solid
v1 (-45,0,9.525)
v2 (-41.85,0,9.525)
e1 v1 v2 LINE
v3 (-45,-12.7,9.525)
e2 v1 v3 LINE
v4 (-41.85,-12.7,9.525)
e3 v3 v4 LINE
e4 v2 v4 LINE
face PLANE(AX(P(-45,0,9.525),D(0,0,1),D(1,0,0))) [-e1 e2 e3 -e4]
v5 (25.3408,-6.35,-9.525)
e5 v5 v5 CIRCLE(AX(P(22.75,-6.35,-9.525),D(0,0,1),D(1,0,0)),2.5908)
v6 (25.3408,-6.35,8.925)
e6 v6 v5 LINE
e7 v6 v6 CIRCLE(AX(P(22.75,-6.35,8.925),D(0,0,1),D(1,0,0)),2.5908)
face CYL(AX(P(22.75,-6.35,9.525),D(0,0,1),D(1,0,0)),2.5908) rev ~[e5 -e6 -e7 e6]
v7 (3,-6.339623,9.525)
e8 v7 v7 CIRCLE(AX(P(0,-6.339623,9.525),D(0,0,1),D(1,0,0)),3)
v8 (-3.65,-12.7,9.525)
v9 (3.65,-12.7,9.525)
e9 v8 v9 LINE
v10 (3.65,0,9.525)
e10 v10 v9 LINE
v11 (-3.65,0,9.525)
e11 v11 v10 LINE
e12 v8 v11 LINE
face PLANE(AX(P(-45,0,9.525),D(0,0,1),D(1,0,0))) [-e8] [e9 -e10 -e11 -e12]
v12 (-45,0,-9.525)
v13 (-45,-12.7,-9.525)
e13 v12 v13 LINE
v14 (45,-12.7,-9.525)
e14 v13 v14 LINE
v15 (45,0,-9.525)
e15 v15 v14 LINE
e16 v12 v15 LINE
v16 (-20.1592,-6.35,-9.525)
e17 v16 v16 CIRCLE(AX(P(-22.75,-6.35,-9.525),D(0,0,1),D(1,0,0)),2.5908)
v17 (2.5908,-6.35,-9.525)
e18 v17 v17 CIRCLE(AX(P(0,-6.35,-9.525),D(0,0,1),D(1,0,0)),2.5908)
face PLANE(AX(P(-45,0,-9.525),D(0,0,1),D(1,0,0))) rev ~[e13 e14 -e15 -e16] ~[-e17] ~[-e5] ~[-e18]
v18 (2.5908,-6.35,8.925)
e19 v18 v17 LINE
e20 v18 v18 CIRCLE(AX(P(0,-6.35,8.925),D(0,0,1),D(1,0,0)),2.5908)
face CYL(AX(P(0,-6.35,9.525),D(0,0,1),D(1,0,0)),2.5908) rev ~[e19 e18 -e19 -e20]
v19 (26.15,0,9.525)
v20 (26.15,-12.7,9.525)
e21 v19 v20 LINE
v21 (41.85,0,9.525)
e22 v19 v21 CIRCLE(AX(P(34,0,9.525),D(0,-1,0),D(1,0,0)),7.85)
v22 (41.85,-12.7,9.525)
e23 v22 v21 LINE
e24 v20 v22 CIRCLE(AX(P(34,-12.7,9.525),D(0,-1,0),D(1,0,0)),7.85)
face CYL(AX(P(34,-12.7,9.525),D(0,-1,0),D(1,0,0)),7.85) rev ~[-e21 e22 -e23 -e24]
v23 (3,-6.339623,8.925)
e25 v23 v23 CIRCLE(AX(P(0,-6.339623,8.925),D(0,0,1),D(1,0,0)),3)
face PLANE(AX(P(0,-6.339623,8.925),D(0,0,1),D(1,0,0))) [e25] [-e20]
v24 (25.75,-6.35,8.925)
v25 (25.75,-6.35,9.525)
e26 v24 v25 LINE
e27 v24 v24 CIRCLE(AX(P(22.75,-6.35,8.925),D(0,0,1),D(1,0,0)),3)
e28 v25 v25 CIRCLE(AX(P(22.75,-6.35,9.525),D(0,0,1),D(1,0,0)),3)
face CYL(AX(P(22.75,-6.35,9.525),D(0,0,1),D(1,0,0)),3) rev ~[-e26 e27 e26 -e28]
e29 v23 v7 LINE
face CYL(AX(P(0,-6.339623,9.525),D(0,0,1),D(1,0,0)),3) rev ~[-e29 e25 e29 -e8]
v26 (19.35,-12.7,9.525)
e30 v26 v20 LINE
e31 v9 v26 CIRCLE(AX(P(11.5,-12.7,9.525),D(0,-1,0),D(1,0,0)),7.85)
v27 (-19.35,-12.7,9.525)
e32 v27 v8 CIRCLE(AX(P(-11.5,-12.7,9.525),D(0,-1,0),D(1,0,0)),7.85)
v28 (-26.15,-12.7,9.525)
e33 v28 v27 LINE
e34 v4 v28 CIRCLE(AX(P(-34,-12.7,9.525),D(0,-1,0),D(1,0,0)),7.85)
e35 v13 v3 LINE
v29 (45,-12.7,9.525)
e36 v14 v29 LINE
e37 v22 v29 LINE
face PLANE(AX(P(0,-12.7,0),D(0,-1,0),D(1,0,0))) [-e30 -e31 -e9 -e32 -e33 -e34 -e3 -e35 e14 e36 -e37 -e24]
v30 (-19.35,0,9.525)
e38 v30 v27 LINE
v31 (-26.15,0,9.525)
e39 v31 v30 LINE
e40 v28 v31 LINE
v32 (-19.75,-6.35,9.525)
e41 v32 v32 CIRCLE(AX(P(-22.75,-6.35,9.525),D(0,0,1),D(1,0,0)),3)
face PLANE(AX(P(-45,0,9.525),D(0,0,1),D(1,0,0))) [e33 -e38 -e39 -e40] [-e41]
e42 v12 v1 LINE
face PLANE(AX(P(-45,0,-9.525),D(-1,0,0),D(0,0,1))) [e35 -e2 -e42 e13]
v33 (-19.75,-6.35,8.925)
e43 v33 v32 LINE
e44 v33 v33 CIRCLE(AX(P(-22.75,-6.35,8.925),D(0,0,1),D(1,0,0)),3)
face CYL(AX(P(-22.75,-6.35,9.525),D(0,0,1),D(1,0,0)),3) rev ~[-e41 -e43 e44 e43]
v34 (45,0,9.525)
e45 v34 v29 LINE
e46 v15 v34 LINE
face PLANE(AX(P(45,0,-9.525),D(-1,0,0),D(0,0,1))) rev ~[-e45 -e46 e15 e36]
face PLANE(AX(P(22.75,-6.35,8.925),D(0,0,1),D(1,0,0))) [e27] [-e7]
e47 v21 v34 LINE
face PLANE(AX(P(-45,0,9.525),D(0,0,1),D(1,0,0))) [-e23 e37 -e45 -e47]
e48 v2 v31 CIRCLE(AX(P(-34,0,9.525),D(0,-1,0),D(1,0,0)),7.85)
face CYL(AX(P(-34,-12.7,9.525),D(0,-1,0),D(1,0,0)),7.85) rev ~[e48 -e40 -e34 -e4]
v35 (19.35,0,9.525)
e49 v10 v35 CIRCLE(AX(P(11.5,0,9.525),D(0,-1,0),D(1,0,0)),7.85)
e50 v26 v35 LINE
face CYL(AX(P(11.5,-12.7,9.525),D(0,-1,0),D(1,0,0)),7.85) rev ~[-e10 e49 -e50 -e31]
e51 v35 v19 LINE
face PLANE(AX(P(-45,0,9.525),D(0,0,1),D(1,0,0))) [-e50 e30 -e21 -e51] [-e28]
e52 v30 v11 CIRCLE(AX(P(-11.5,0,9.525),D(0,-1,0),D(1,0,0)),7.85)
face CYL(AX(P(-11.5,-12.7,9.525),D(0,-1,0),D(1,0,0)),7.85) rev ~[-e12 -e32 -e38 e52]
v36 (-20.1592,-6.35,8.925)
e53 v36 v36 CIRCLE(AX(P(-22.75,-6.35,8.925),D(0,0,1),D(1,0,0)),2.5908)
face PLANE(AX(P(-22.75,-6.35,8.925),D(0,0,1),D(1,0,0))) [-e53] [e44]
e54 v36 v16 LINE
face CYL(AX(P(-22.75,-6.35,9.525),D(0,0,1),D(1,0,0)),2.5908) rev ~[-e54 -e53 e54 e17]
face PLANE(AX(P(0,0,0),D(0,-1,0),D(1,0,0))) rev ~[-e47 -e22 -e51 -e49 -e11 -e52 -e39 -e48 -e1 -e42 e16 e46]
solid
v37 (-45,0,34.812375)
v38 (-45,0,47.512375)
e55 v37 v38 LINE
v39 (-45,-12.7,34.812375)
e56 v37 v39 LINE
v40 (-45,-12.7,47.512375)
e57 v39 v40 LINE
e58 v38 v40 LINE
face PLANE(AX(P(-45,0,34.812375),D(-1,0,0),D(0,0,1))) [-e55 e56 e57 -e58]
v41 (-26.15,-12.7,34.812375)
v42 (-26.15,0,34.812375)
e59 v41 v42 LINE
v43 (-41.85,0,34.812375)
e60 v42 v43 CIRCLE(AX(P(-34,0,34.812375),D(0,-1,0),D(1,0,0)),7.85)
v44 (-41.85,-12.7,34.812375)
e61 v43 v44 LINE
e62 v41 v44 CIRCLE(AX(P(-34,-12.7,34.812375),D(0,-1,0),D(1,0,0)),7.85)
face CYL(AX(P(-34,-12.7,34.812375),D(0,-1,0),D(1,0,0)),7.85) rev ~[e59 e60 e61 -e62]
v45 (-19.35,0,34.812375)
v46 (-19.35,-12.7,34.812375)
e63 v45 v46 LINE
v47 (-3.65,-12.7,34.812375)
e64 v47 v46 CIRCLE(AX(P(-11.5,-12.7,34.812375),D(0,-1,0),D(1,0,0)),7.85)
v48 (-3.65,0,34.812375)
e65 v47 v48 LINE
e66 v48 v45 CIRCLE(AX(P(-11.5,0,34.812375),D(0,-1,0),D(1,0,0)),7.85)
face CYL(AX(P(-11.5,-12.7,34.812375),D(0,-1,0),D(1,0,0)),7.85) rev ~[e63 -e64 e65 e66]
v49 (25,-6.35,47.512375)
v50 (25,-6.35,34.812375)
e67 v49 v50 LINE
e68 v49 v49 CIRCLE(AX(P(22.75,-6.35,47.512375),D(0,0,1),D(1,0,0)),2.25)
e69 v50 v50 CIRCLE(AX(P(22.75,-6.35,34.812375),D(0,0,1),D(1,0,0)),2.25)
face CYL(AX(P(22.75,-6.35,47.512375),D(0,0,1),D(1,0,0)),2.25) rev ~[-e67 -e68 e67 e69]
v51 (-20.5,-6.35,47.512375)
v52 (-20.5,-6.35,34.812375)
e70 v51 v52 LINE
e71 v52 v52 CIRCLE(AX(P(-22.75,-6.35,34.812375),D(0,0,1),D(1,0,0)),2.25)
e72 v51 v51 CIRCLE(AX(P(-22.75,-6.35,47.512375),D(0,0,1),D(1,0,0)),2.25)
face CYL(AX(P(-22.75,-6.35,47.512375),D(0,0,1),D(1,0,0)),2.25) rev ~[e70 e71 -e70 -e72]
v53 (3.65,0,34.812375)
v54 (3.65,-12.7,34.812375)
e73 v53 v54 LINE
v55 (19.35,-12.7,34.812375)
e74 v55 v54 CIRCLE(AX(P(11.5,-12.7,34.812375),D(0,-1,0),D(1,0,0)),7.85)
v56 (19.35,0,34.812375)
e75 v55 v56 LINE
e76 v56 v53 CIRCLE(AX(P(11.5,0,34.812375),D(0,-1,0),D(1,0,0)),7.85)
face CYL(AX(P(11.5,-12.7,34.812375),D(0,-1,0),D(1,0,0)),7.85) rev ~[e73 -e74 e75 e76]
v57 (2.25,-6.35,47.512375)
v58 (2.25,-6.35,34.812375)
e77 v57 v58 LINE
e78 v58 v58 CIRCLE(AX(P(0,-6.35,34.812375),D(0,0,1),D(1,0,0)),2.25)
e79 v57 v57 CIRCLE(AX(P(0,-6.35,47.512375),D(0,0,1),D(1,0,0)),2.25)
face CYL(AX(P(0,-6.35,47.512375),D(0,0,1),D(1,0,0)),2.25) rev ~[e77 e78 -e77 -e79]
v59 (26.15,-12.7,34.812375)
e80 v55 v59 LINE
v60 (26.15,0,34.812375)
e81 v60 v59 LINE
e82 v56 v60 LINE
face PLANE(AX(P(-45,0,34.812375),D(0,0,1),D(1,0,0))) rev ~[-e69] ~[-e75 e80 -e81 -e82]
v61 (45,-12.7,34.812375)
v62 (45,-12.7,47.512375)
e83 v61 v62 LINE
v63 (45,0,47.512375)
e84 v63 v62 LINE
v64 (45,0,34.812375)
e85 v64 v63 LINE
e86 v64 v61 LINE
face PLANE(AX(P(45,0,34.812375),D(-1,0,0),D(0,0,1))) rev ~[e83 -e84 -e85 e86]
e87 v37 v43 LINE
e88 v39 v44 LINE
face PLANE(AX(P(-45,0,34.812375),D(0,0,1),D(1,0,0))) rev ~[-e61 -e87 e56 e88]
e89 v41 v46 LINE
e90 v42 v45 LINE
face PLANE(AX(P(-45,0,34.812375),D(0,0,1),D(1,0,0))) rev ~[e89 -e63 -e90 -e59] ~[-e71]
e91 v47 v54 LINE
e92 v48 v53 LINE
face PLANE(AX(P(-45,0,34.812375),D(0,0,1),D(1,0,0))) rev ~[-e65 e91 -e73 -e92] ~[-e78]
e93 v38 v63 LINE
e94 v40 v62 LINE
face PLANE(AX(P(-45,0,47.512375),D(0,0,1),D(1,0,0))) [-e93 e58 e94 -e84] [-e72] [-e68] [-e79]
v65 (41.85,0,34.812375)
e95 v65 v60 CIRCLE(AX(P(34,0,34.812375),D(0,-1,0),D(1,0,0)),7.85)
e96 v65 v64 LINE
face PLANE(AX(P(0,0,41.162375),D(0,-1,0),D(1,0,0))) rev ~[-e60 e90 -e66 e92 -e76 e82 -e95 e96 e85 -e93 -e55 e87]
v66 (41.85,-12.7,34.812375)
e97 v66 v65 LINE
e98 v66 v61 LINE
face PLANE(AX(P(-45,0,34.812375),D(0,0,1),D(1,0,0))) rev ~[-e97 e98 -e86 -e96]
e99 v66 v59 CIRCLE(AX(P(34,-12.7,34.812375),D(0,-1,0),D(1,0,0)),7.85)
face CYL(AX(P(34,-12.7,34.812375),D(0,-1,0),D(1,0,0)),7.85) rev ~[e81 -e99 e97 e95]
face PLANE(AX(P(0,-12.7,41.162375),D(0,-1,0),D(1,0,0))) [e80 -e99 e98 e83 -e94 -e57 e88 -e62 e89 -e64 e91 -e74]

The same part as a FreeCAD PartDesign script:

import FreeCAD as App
import Part
import Sketcher
Q = App.Units.Quantity

doc = App.newDocument("Part")
body = doc.addObject("PartDesign::Body", "Body")

# Sketch on XZ plane
sketch1 = body.newObject("Sketcher::SketchObject", "Sketch")
sketch1.AttachmentSupport = (doc.getObject("XZ_Plane"), [""])
sketch1.MapMode = "FlatFace"
sketch1.addGeometry([
    Part.LineSegment(App.Vector(-45, 10, 0), App.Vector(-45, -10, 0)),
    Part.LineSegment(App.Vector(-45, -10, 0), App.Vector(45, -10, 0)),
    Part.LineSegment(App.Vector(45, -10, 0), App.Vector(45, 10, 0)),
    Part.LineSegment(App.Vector(45, 10, 0), App.Vector(-45, 10, 0)),
], False)
sketch1.addConstraint([
    Sketcher.Constraint("Coincident", 0, 2, 1, 1),
    Sketcher.Constraint("Coincident", 1, 2, 2, 1),
    Sketcher.Constraint("Coincident", 2, 2, 3, 1),
    Sketcher.Constraint("Coincident", 3, 2, 0, 1),
    Sketcher.Constraint("Vertical", 0),
    Sketcher.Constraint("Horizontal", 1),
    Sketcher.Constraint("Vertical", 2),
    Sketcher.Constraint("Horizontal", 3),
    Sketcher.Constraint("Symmetric", 0, 2, 2, 2, -1, 1),
    Sketcher.Constraint("DistanceX", 1, 1, 1, 2, Q("90 mm")),
    Sketcher.Constraint("DistanceY", 0, 2, 0, 1, Q("19.05 mm")),
])
pad1 = body.newObject("PartDesign::Pad", "Pad")
pad1.Profile = sketch1
pad1.Length = 12.7

# Sketch on XZ plane
sketch2 = body.newObject("Sketcher::SketchObject", "Sketch001")
sketch2.AttachmentSupport = (doc.getObject("XZ_Plane"), [""])
sketch2.MapMode = "FlatFace"
sketch2.AttachmentOffset = App.Placement(App.Vector(0, 0, 12.7), App.Rotation())
sketch2.addGeometry([
    Part.Circle(App.Vector(-34, 10, 0), App.Vector(0, 0, 1), 8),
    Part.Circle(App.Vector(-12, 10, 0), App.Vector(0, 0, 1), 8),
    Part.Circle(App.Vector(12, 10, 0), App.Vector(0, 0, 1), 8),
    Part.Circle(App.Vector(34, 10, 0), App.Vector(0, 0, 1), 8),
], False)
sketch2.addConstraint([
    Sketcher.Constraint("Equal", 0, 1),
    Sketcher.Constraint("Equal", 1, 2),
    Sketcher.Constraint("Equal", 2, 3),
    Sketcher.Constraint("Symmetric", 1, 3, 2, 3, -2),
    Sketcher.Constraint("Symmetric", 0, 3, 3, 3, -2),
    Sketcher.Constraint("Horizontal", 0, 3, 1, 3),
    Sketcher.Constraint("Diameter", 0, Q("15.7 mm")),
    Sketcher.Constraint("DistanceX", 0, 3, -1, 1, Q("34 mm")),
    Sketcher.Constraint("DistanceX", 1, 3, 2, 3, Q("23 mm")),
    Sketcher.Constraint("DistanceY", -1, 1, 0, 3, Q("9.525 mm")),
])
pocket1 = body.newObject("PartDesign::Pocket", "Pocket")
pocket1.Profile = sketch2
pocket1.Length = 25.4

# Sketch on XY plane
sketch3 = body.newObject("Sketcher::SketchObject", "Sketch002")
sketch3.AttachmentSupport = (doc.getObject("XY_Plane"), [""])
sketch3.MapMode = "FlatFace"
sketch3.AttachmentOffset = App.Placement(App.Vector(0, 0, 9.525), App.Rotation())
sketch3.addGeometry([
    Part.Circle(App.Vector(-22.8, -6.3, 0), App.Vector(0, 0, 1), 2.6),
    Part.Circle(App.Vector(0, -6.3, 0), App.Vector(0, 0, 1), 2.6),
    Part.Circle(App.Vector(22.8, -6.3, 0), App.Vector(0, 0, 1), 2.6),
], False)
sketch3.addConstraint([
    Sketcher.Constraint("Equal", 0, 1),
    Sketcher.Constraint("Equal", 1, 2),
    Sketcher.Constraint("Symmetric", 0, 3, 2, 3, -2),
    Sketcher.Constraint("PointOnObject", 1, 3, -2),
    Sketcher.Constraint("Horizontal", 0, 3, 1, 3),
    Sketcher.Constraint("Diameter", 0, Q("5.1816 mm")),
    Sketcher.Constraint("DistanceX", 0, 3, 2, 3, Q("45.5 mm")),
    Sketcher.Constraint("DistanceY", 0, 3, -1, 1, Q("6.35 mm")),
])
pocket2 = body.newObject("PartDesign::Pocket", "Pocket001")
pocket2.Profile = sketch3
pocket2.Length = 20

# Sketch on XY plane
sketch4 = body.newObject("Sketcher::SketchObject", "Sketch003")
sketch4.AttachmentSupport = (doc.getObject("XY_Plane"), [""])
sketch4.MapMode = "FlatFace"
sketch4.AttachmentOffset = App.Placement(App.Vector(0, 0, 9.525), App.Rotation())
sketch4.addGeometry([
    Part.Circle(App.Vector(-22.8, -6.3, 0), App.Vector(0, 0, 1), 3),
    Part.Circle(App.Vector(22.8, -6.3, 0), App.Vector(0, 0, 1), 3),
    Part.Circle(App.Vector(0, -6.3, 0), App.Vector(0, 0, 1), 3),
], False)
sketch4.addConstraint([
    Sketcher.Constraint("Equal", 0, 1),
    Sketcher.Constraint("Equal", 1, 2),
    Sketcher.Constraint("Symmetric", 0, 3, 1, 3, -2),
    Sketcher.Constraint("PointOnObject", 2, 3, -2),
    Sketcher.Constraint("Diameter", 0, Q("6 mm")),
    Sketcher.Constraint("DistanceX", 0, 3, 1, 3, Q("45.5 mm")),
    Sketcher.Constraint("DistanceY", 0, 3, -1, 1, Q("6.35 mm")),
    Sketcher.Constraint("DistanceY", 2, 3, -1, 1, Q("6.339623 mm")),
])
pocket3 = body.newObject("PartDesign::Pocket", "Pocket002")
pocket3.Profile = sketch4
pocket3.Length = 0.5

# Sketch on XY plane
sketch5 = body.newObject("Sketcher::SketchObject", "Sketch004")
sketch5.AttachmentSupport = (doc.getObject("XY_Plane"), [""])
sketch5.MapMode = "FlatFace"
sketch5.AttachmentOffset = App.Placement(App.Vector(0, 0, 9.525), App.Rotation())
sketch5.addGeometry([
    Part.Circle(App.Vector(-22.8, -6.3, 0), App.Vector(0, 0, 1), 3),
    Part.Circle(App.Vector(22.8, -6.3, 0), App.Vector(0, 0, 1), 3),
    Part.Circle(App.Vector(0, -6.3, 0), App.Vector(0, 0, 1), 3),
], False)
sketch5.addConstraint([
    Sketcher.Constraint("Equal", 0, 1),
    Sketcher.Constraint("Equal", 1, 2),
    Sketcher.Constraint("Symmetric", 0, 3, 1, 3, -2),
    Sketcher.Constraint("PointOnObject", 2, 3, -2),
    Sketcher.Constraint("Diameter", 0, Q("6 mm")),
    Sketcher.Constraint("DistanceX", 0, 3, 1, 3, Q("45.5 mm")),
    Sketcher.Constraint("DistanceY", 0, 3, -1, 1, Q("6.35 mm")),
    Sketcher.Constraint("DistanceY", 2, 3, -1, 1, Q("6.339623 mm")),
])
pocket4 = body.newObject("PartDesign::Pocket", "Pocket003")
pocket4.Profile = sketch5
pocket4.Length = 0.6
body2 = doc.addObject("PartDesign::Body", "Body001")

# Sketch on XZ plane
sketch6 = body2.newObject("Sketcher::SketchObject", "Sketch005")
sketch6.AttachmentSupport = (doc.getObject("XZ_Plane001"), [""])
sketch6.MapMode = "FlatFace"
sketch6.addGeometry([
    Part.LineSegment(App.Vector(-45, 48, 0), App.Vector(-45, 35, 0)),
    Part.LineSegment(App.Vector(-45, 35, 0), App.Vector(45, 35, 0)),
    Part.LineSegment(App.Vector(45, 35, 0), App.Vector(45, 48, 0)),
    Part.LineSegment(App.Vector(45, 48, 0), App.Vector(-45, 48, 0)),
], False)
sketch6.addConstraint([
    Sketcher.Constraint("Coincident", 0, 2, 1, 1),
    Sketcher.Constraint("Coincident", 1, 2, 2, 1),
    Sketcher.Constraint("Coincident", 2, 2, 3, 1),
    Sketcher.Constraint("Coincident", 3, 2, 0, 1),
    Sketcher.Constraint("Vertical", 0),
    Sketcher.Constraint("Horizontal", 1),
    Sketcher.Constraint("Vertical", 2),
    Sketcher.Constraint("Horizontal", 3),
    Sketcher.Constraint("DistanceX", 1, 1, 1, 2, Q("90 mm")),
    Sketcher.Constraint("DistanceY", 0, 2, 0, 1, Q("12.7 mm")),
    Sketcher.Constraint("DistanceX", 0, 2, -1, 1, Q("45 mm")),
    Sketcher.Constraint("DistanceY", -1, 1, 0, 2, Q("34.812375 mm")),
])
pad2 = body2.newObject("PartDesign::Pad", "Pad001")
pad2.Profile = sketch6
pad2.Length = 12.7

# Sketch on XZ plane
sketch7 = body2.newObject("Sketcher::SketchObject", "Sketch006")
sketch7.AttachmentSupport = (doc.getObject("XZ_Plane001"), [""])
sketch7.MapMode = "FlatFace"
sketch7.AttachmentOffset = App.Placement(App.Vector(0, 0, 12.7), App.Rotation())
sketch7.addGeometry([
    Part.Circle(App.Vector(-34, 35, 0), App.Vector(0, 0, 1), 8),
    Part.Circle(App.Vector(-12, 35, 0), App.Vector(0, 0, 1), 8),
    Part.Circle(App.Vector(12, 35, 0), App.Vector(0, 0, 1), 8),
    Part.Circle(App.Vector(34, 35, 0), App.Vector(0, 0, 1), 8),
], False)
sketch7.addConstraint([
    Sketcher.Constraint("Equal", 0, 1),
    Sketcher.Constraint("Equal", 1, 2),
    Sketcher.Constraint("Equal", 2, 3),
    Sketcher.Constraint("Symmetric", 1, 3, 2, 3, -2),
    Sketcher.Constraint("Symmetric", 0, 3, 3, 3, -2),
    Sketcher.Constraint("Horizontal", 0, 3, 1, 3),
    Sketcher.Constraint("Diameter", 0, Q("15.7 mm")),
    Sketcher.Constraint("DistanceX", 0, 3, -1, 1, Q("34 mm")),
    Sketcher.Constraint("DistanceX", 1, 3, 2, 3, Q("23 mm")),
    Sketcher.Constraint("DistanceY", -1, 1, 0, 3, Q("34.812375 mm")),
])
pocket5 = body2.newObject("PartDesign::Pocket", "Pocket004")
pocket5.Profile = sketch7
pocket5.Length = 25.4

# Sketch on XY plane
sketch8 = body2.newObject("Sketcher::SketchObject", "Sketch007")
sketch8.AttachmentSupport = (doc.getObject("XY_Plane001"), [""])
sketch8.MapMode = "FlatFace"
sketch8.AttachmentOffset = App.Placement(App.Vector(0, 0, 47.512375), App.Rotation())
sketch8.addGeometry([
    Part.Circle(App.Vector(-22.8, -6.3, 0), App.Vector(0, 0, 1), 2.2),
    Part.Circle(App.Vector(0, -6.3, 0), App.Vector(0, 0, 1), 2.2),
    Part.Circle(App.Vector(22.8, -6.3, 0), App.Vector(0, 0, 1), 2.2),
], False)
sketch8.addConstraint([
    Sketcher.Constraint("Equal", 0, 1),
    Sketcher.Constraint("Equal", 1, 2),
    Sketcher.Constraint("Symmetric", 0, 3, 2, 3, -2),
    Sketcher.Constraint("PointOnObject", 1, 3, -2),
    Sketcher.Constraint("Horizontal", 0, 3, 1, 3),
    Sketcher.Constraint("Diameter", 0, Q("4.5 mm")),
    Sketcher.Constraint("DistanceX", 0, 3, 2, 3, Q("45.5 mm")),
    Sketcher.Constraint("DistanceY", 0, 3, -1, 1, Q("6.35 mm")),
])
pocket6 = body2.newObject("PartDesign::Pocket", "Pocket005")
pocket6.Profile = sketch8
pocket6.Length = 25.4

doc.recompute()
